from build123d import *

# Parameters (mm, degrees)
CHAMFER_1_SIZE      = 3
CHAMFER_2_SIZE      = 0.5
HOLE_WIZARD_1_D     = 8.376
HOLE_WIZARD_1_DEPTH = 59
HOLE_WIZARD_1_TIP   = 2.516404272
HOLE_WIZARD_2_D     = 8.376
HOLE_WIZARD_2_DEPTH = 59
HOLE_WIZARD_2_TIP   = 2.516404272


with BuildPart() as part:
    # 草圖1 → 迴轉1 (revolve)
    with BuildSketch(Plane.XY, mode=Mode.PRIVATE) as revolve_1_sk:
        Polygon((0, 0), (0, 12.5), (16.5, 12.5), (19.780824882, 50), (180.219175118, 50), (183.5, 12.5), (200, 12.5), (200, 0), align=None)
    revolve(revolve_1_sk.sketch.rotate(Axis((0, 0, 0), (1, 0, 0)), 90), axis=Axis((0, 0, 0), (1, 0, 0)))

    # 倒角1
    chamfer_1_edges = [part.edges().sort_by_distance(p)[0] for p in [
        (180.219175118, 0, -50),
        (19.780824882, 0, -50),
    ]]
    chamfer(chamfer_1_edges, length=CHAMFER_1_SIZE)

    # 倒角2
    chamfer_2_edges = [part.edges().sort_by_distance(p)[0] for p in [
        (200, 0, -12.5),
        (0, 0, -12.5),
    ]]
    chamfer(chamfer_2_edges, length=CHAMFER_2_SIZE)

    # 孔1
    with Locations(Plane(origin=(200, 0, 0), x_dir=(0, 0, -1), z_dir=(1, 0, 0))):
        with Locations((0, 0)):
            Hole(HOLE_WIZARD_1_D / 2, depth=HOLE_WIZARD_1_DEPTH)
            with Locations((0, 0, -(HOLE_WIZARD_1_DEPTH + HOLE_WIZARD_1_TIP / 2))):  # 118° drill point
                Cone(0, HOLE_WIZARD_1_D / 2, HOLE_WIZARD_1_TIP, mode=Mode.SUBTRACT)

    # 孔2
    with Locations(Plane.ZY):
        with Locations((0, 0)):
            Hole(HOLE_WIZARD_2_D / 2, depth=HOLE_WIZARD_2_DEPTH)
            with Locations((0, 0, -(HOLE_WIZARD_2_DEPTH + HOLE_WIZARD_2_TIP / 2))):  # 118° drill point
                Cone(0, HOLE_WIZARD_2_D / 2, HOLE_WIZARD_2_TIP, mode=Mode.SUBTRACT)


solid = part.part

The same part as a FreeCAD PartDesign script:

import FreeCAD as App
import Part
import Sketcher
Q = App.Units.Quantity


def edges_at(feature, points):
    """Names of the edges that pass closest to the given points."""
    edges = feature.Shape.Edges
    near = lambda p: min(range(len(edges)), key=lambda i: edges[i].distToShape(Part.Vertex(*p))[0])
    return sorted({f"Edge{near(p) + 1}" for p in points})


def add_polygon(sketch, points):
    """Adds a closed chain of lines whose ends are joined by coincident constraints."""
    first, n = sketch.GeometryCount, len(points)
    for a, b in zip(points, points[1:] + points[:1]):
        sketch.addGeometry(Part.LineSegment(App.Vector(*a, 0), App.Vector(*b, 0)), False)
    for i in range(n):
        sketch.addConstraint(Sketcher.Constraint("Coincident", first + i, 2, first + (i + 1) % n, 1))

doc = App.newDocument("Part")
params = doc.addObject("Spreadsheet::Sheet", "Params")
for row, (alias, value) in enumerate([
    ("sketch1_width", "200 mm"),
    ("sketch1_width2", "16.5 mm"),
    ("sketch1_height", "12.5 mm"),
    ("revolution_angle", "360 deg"),
    ("chamfer_size", "3 mm"),
    ("chamfer2_size", "0.5 mm"),
    ("hole_diameter", "8.376 mm"),
    ("hole_depth", "59 mm"),
    ("hole2_diameter", "8.376 mm"),
    ("hole2_depth", "59 mm"),
], start=1):
    params.set(f"A{row}", alias)
    params.set(f"B{row}", "=" + value)
    params.setAlias(f"B{row}", alias)

body = doc.addObject("PartDesign::Body", "Body")

sketch1 = body.newObject("Sketcher::SketchObject", "Sketch")
sketch1.AttachmentSupport = (doc.getObject("XY_Plane"), [""])
sketch1.MapMode = "FlatFace"
add_polygon(sketch1, [(0, 12.5), (0, 0), (200, 0), (200, 12.5), (183.5, 12.5), (180.219175, 50), (19.780825, 50), (16.5, 12.5)])
sketch1.addConstraint([
    Sketcher.Constraint("Vertical", 0),
    Sketcher.Constraint("Horizontal", 1),
    Sketcher.Constraint("Vertical", 2),
    Sketcher.Constraint("Horizontal", 3),
    Sketcher.Constraint("Horizontal", 5),
    Sketcher.Constraint("Horizontal", 7),
    Sketcher.Constraint("Coincident", 0, 2, -1, 1),
    Sketcher.Constraint("Horizontal", 3, 2, 6, 2),
    Sketcher.Constraint("Equal", 3, 7),
    Sketcher.Constraint("Equal", 4, 6),
    Sketcher.Constraint("DistanceX", 1, 1, 1, 2, Q("200 mm")),
    Sketcher.Constraint("Angle", 4, Q("95 deg")),
    Sketcher.Constraint("DistanceX", 3, 2, 3, 1, Q("16.5 mm")),
    Sketcher.Constraint("DistanceY", 0, 2, 0, 1, Q("12.5 mm")),
    Sketcher.Constraint("DistanceY", -1, 1, 4, 2, Q("50 mm")),
])
sketch1.setExpression("Constraints[18]", "Params.sketch1_width")
sketch1.setExpression("Constraints[20]", "Params.sketch1_width2")
sketch1.setExpression("Constraints[21]", "Params.sketch1_height")
revolution = body.newObject("PartDesign::Revolution", "Revolution")
revolution.Profile = sketch1
revolution.ReferenceAxis = (sketch1, ["H_Axis"])
revolution.setExpression("Angle", "Params.revolution_angle")
doc.recompute()

chamfer = body.newObject("PartDesign::Chamfer", "Chamfer")
chamfer.Base = (revolution, edges_at(revolution, [(180.219, 0, -50), (19.781, 0, -50)]))
chamfer.setExpression("Size", "Params.chamfer_size")
doc.recompute()

chamfer2 = body.newObject("PartDesign::Chamfer", "Chamfer001")
chamfer2.Base = (chamfer, edges_at(chamfer, [(200, 0, -12.5), (0, 0, -12.5)]))
chamfer2.setExpression("Size", "Params.chamfer2_size")

sketch2 = body.newObject("Sketcher::SketchObject", "Sketch001")
sketch2.AttachmentSupport = (doc.getObject("YZ_Plane"), [""])
sketch2.MapMode = "FlatFace"
sketch2.AttachmentOffset = App.Placement(App.Vector(0, 0, 200), App.Rotation())
sketch2.addGeometry(Part.Circle(App.Vector(0, 0, 0), App.Vector(0, 0, 1), 4.188), False)
sketch2.addConstraint([
    Sketcher.Constraint("Coincident", 0, 3, -1, 1),
    Sketcher.Constraint("Diameter", 0, Q("8.376 mm")),
])
doc.recompute()
hole = body.newObject("PartDesign::Hole", "Hole")
hole.Profile = sketch2
hole.ThreadType = "None"
hole.setExpression("Diameter", "Params.hole_diameter")
hole.DepthType = "Dimension"
hole.setExpression("Depth", "Params.hole_depth")
hole.DrillPoint = "Angled"
hole.DrillPointAngle = 118

sketch3 = body.newObject("Sketcher::SketchObject", "Sketch002")
sketch3.AttachmentSupport = (doc.getObject("YZ_Plane"), [""])
sketch3.MapMode = "FlatFace"
sketch3.addGeometry(Part.Circle(App.Vector(0, 0, 0), App.Vector(0, 0, 1), 4.188), False)
sketch3.addConstraint([
    Sketcher.Constraint("Coincident", 0, 3, -1, 1),
    Sketcher.Constraint("Diameter", 0, Q("8.376 mm")),
])
doc.recompute()
hole2 = body.newObject("PartDesign::Hole", "Hole001")
hole2.Profile = sketch3
hole2.ThreadType = "None"
hole2.setExpression("Diameter", "Params.hole2_diameter")
hole2.DepthType = "Dimension"
hole2.setExpression("Depth", "Params.hole2_depth")
hole2.DrillPoint = "Angled"
hole2.DrillPointAngle = 118
hole2.Reversed = True

doc.recompute()
